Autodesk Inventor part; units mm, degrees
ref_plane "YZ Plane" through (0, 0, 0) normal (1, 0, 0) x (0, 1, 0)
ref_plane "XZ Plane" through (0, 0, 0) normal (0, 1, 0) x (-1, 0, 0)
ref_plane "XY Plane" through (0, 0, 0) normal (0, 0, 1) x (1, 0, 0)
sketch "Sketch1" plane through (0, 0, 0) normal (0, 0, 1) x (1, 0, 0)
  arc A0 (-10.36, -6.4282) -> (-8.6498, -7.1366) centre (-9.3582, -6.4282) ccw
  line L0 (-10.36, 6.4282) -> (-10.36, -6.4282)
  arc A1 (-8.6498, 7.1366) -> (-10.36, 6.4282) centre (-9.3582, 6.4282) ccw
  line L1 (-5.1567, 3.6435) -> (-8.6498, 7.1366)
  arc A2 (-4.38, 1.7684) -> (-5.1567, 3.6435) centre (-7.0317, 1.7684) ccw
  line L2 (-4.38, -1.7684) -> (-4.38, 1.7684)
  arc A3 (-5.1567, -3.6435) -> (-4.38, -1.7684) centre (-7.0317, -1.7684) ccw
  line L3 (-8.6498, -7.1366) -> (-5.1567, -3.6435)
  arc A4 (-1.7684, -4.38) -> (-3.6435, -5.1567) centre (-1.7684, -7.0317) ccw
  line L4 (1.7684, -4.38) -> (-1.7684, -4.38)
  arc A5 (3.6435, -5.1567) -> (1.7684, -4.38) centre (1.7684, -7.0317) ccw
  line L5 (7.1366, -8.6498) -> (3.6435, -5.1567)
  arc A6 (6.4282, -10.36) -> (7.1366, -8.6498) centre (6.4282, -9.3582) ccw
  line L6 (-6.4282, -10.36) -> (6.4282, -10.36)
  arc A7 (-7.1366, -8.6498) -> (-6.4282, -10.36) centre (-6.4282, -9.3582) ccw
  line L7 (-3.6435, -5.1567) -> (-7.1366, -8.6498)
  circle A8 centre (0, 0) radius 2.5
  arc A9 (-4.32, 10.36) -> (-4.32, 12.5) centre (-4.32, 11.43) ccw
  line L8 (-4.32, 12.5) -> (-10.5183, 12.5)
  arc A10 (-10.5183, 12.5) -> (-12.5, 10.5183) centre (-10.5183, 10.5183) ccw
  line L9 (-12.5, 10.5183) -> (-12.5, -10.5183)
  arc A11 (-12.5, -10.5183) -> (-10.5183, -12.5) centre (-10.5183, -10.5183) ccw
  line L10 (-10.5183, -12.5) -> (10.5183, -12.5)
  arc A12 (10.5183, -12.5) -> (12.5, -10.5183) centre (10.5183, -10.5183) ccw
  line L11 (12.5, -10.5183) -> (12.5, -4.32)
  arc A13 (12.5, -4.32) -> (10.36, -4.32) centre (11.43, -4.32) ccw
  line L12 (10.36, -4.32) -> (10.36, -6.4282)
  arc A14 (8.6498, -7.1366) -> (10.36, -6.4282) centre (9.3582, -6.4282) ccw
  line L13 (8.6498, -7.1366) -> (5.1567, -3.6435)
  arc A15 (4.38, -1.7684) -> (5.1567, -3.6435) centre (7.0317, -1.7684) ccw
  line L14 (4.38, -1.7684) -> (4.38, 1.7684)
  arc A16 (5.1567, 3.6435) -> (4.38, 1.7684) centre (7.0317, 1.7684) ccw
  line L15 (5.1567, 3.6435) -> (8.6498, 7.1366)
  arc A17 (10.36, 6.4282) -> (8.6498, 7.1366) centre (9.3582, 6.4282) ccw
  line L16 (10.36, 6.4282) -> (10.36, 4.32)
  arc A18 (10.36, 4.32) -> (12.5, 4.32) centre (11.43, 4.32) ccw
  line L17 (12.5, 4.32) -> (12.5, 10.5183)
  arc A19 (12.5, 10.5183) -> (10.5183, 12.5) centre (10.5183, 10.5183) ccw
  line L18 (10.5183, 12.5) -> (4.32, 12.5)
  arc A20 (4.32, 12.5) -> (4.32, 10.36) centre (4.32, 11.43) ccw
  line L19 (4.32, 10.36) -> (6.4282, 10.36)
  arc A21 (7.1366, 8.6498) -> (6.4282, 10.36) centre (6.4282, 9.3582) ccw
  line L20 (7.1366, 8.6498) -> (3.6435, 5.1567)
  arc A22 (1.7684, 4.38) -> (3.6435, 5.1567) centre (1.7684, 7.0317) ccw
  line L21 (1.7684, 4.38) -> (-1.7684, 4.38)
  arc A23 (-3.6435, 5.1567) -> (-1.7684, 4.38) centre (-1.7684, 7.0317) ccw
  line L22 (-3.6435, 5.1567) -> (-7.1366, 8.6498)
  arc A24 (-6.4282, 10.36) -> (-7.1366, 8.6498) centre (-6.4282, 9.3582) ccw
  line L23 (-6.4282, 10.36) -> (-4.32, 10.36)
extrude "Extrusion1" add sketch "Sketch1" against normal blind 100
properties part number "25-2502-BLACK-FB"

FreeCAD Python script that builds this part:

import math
import FreeCAD as App
import Part
import Sketcher
Q = App.Units.Quantity

doc = App.newDocument("Part")
body = doc.addObject("PartDesign::Body", "Body")

sketch1 = body.newObject("Sketcher::SketchObject", "Sketch")
sketch1.AttachmentSupport = (doc.getObject("XY_Plane"), [""])
sketch1.MapMode = "FlatFace"
sketch1.addGeometry(Part.LineSegment(App.Vector(-6.4, 10.4, 0), App.Vector(-4.3, 10.4, 0)), False)
sketch1.addGeometry(Part.ArcOfCircle(Part.Circle(App.Vector(-4.3, 11.4, 0), App.Vector(0, 0, 1), 1.1), math.radians(-90), math.radians(90)), False)
sketch1.addGeometry(Part.LineSegment(App.Vector(-4.3, 12.5, 0), App.Vector(-10.5, 12.5, 0)), False)
sketch1.addGeometry(Part.ArcOfCircle(Part.Circle(App.Vector(-10.5, 10.5, 0), App.Vector(0, 0, 1), 2), math.radians(90), math.radians(180)), False)
sketch1.addGeometry(Part.LineSegment(App.Vector(-12.5, 10.5, 0), App.Vector(-12.5, -10.5, 0)), False)
sketch1.addGeometry(Part.ArcOfCircle(Part.Circle(App.Vector(-10.5, -10.5, 0), App.Vector(0, 0, 1), 2), math.radians(180), math.radians(270)), False)
sketch1.addGeometry(Part.LineSegment(App.Vector(-10.5, -12.5, 0), App.Vector(10.5, -12.5, 0)), False)
sketch1.addGeometry(Part.ArcOfCircle(Part.Circle(App.Vector(10.5, -10.5, 0), App.Vector(0, 0, 1), 2), math.radians(-90), math.radians(0)), False)
sketch1.addGeometry(Part.LineSegment(App.Vector(12.5, -10.5, 0), App.Vector(12.5, -4.3, 0)), False)
sketch1.addGeometry(Part.ArcOfCircle(Part.Circle(App.Vector(11.4, -4.3, 0), App.Vector(0, 0, 1), 1.1), math.radians(0), math.radians(180)), False)
sketch1.addGeometry(Part.LineSegment(App.Vector(10.4, -4.3, 0), App.Vector(10.4, -6.4, 0)), False)
sketch1.addGeometry(Part.ArcOfCircle(Part.Circle(App.Vector(9.4, -6.4, 0), App.Vector(0, 0, 1), 1), math.radians(-135), math.radians(0)), False)
sketch1.addGeometry(Part.LineSegment(App.Vector(8.6, -7.1, 0), App.Vector(5.2, -3.6, 0)), False)
sketch1.addGeometry(Part.ArcOfCircle(Part.Circle(App.Vector(7, -1.8, 0), App.Vector(0, 0, 1), 2.7), math.radians(180), math.radians(225)), False)
sketch1.addGeometry(Part.LineSegment(App.Vector(4.4, -1.8, 0), App.Vector(4.4, 1.8, 0)), False)
sketch1.addGeometry(Part.ArcOfCircle(Part.Circle(App.Vector(7, 1.8, 0), App.Vector(0, 0, 1), 2.7), math.radians(135), math.radians(180)), False)
sketch1.addGeometry(Part.LineSegment(App.Vector(5.2, 3.6, 0), App.Vector(8.6, 7.1, 0)), False)
sketch1.addGeometry(Part.ArcOfCircle(Part.Circle(App.Vector(9.4, 6.4, 0), App.Vector(0, 0, 1), 1), math.radians(0), math.radians(135)), False)
sketch1.addGeometry(Part.LineSegment(App.Vector(10.4, 6.4, 0), App.Vector(10.4, 4.3, 0)), False)
sketch1.addGeometry(Part.ArcOfCircle(Part.Circle(App.Vector(11.4, 4.3, 0), App.Vector(0, 0, 1), 1.1), math.radians(180), math.radians(360)), False)
sketch1.addGeometry(Part.LineSegment(App.Vector(12.5, 4.3, 0), App.Vector(12.5, 10.5, 0)), False)
sketch1.addGeometry(Part.ArcOfCircle(Part.Circle(App.Vector(10.5, 10.5, 0), App.Vector(0, 0, 1), 2), math.radians(0), math.radians(90)), False)
sketch1.addGeometry(Part.LineSegment(App.Vector(10.5, 12.5, 0), App.Vector(4.3, 12.5, 0)), False)
sketch1.addGeometry(Part.ArcOfCircle(Part.Circle(App.Vector(4.3, 11.4, 0), App.Vector(0, 0, 1), 1.1), math.radians(90), math.radians(270)), False)
sketch1.addGeometry(Part.LineSegment(App.Vector(4.3, 10.4, 0), App.Vector(6.4, 10.4, 0)), False)
sketch1.addGeometry(Part.ArcOfCircle(Part.Circle(App.Vector(6.4, 9.4, 0), App.Vector(0, 0, 1), 1), math.radians(-45), math.radians(90)), False)
sketch1.addGeometry(Part.LineSegment(App.Vector(7.1, 8.6, 0), App.Vector(3.6, 5.2, 0)), False)
sketch1.addGeometry(Part.ArcOfCircle(Part.Circle(App.Vector(1.8, 7, 0), App.Vector(0, 0, 1), 2.7), math.radians(-90), math.radians(-45)), False)
sketch1.addGeometry(Part.LineSegment(App.Vector(1.8, 4.4, 0), App.Vector(-1.8, 4.4, 0)), False)
sketch1.addGeometry(Part.ArcOfCircle(Part.Circle(App.Vector(-1.8, 7, 0), App.Vector(0, 0, 1), 2.7), math.radians(-135), math.radians(-90)), False)
sketch1.addGeometry(Part.LineSegment(App.Vector(-3.6, 5.2, 0), App.Vector(-7.1, 8.6, 0)), False)
sketch1.addGeometry(Part.ArcOfCircle(Part.Circle(App.Vector(-6.4, 9.4, 0), App.Vector(0, 0, 1), 1), math.radians(90), math.radians(225)), False)
sketch1.addGeometry(Part.ArcOfCircle(Part.Circle(App.Vector(-1.8, -7, 0), App.Vector(0, 0, 1), 2.7), math.radians(90), math.radians(135)), False)
sketch1.addGeometry(Part.LineSegment(App.Vector(-1.8, -4.4, 0), App.Vector(1.8, -4.4, 0)), False)
sketch1.addGeometry(Part.ArcOfCircle(Part.Circle(App.Vector(1.8, -7, 0), App.Vector(0, 0, 1), 2.7), math.radians(45), math.radians(90)), False)
sketch1.addGeometry(Part.LineSegment(App.Vector(3.6, -5.2, 0), App.Vector(7.1, -8.6, 0)), False)
sketch1.addGeometry(Part.ArcOfCircle(Part.Circle(App.Vector(6.4, -9.4, 0), App.Vector(0, 0, 1), 1), math.radians(-90), math.radians(45)), False)
sketch1.addGeometry(Part.LineSegment(App.Vector(6.4, -10.4, 0), App.Vector(-6.4, -10.4, 0)), False)
sketch1.addGeometry(Part.ArcOfCircle(Part.Circle(App.Vector(-6.4, -9.4, 0), App.Vector(0, 0, 1), 1), math.radians(135), math.radians(270)), False)
sketch1.addGeometry(Part.LineSegment(App.Vector(-7.1, -8.6, 0), App.Vector(-3.6, -5.2, 0)), False)
sketch1.addGeometry(Part.ArcOfCircle(Part.Circle(App.Vector(-9.4, -6.4, 0), App.Vector(0, 0, 1), 1), math.radians(180), math.radians(315)), False)
sketch1.addGeometry(Part.LineSegment(App.Vector(-10.4, -6.4, 0), App.Vector(-10.4, 6.4, 0)), False)
sketch1.addGeometry(Part.ArcOfCircle(Part.Circle(App.Vector(-9.4, 6.4, 0), App.Vector(0, 0, 1), 1), math.radians(45), math.radians(180)), False)
sketch1.addGeometry(Part.LineSegment(App.Vector(-8.6, 7.1, 0), App.Vector(-5.2, 3.6, 0)), False)
sketch1.addGeometry(Part.ArcOfCircle(Part.Circle(App.Vector(-7, 1.8, 0), App.Vector(0, 0, 1), 2.7), math.radians(0), math.radians(45)), False)
sketch1.addGeometry(Part.LineSegment(App.Vector(-4.4, 1.8, 0), App.Vector(-4.4, -1.8, 0)), False)
sketch1.addGeometry(Part.ArcOfCircle(Part.Circle(App.Vector(-7, -1.8, 0), App.Vector(0, 0, 1), 2.7), math.radians(-45), math.radians(0)), False)
sketch1.addGeometry(Part.LineSegment(App.Vector(-5.2, -3.6, 0), App.Vector(-8.6, -7.1, 0)), False)
sketch1.addGeometry(Part.Circle(App.Vector(0, 0, 0), App.Vector(0, 0, 1), 2.5), False)
sketch1.addConstraint(Sketcher.Constraint("Tangent", 0, 2, 1, 1))
sketch1.addConstraint(Sketcher.Constraint("Tangent", 1, 2, 2, 1))
sketch1.addConstraint(Sketcher.Constraint("Tangent", 2, 2, 3, 1))
sketch1.addConstraint(Sketcher.Constraint("Tangent", 3, 2, 4, 1))
sketch1.addConstraint(Sketcher.Constraint("Tangent", 4, 2, 5, 1))
sketch1.addConstraint(Sketcher.Constraint("Tangent", 5, 2, 6, 1))
sketch1.addConstraint(Sketcher.Constraint("Tangent", 6, 2, 7, 1))
sketch1.addConstraint(Sketcher.Constraint("Tangent", 7, 2, 8, 1))
sketch1.addConstraint(Sketcher.Constraint("Tangent", 8, 2, 9, 1))
sketch1.addConstraint(Sketcher.Constraint("Tangent", 9, 2, 10, 1))
sketch1.addConstraint(Sketcher.Constraint("Tangent", 10, 2, 11, 2))
sketch1.addConstraint(Sketcher.Constraint("Tangent", 11, 1, 12, 1))
sketch1.addConstraint(Sketcher.Constraint("Tangent", 12, 2, 13, 2))
sketch1.addConstraint(Sketcher.Constraint("Tangent", 13, 1, 14, 1))
sketch1.addConstraint(Sketcher.Constraint("Tangent", 14, 2, 15, 2))
sketch1.addConstraint(Sketcher.Constraint("Tangent", 15, 1, 16, 1))
sketch1.addConstraint(Sketcher.Constraint("Tangent", 16, 2, 17, 2))
sketch1.addConstraint(Sketcher.Constraint("Tangent", 17, 1, 18, 1))
sketch1.addConstraint(Sketcher.Constraint("Tangent", 18, 2, 19, 1))
sketch1.addConstraint(Sketcher.Constraint("Tangent", 19, 2, 20, 1))
sketch1.addConstraint(Sketcher.Constraint("Tangent", 20, 2, 21, 1))
sketch1.addConstraint(Sketcher.Constraint("Tangent", 21, 2, 22, 1))
sketch1.addConstraint(Sketcher.Constraint("Tangent", 22, 2, 23, 1))
sketch1.addConstraint(Sketcher.Constraint("Tangent", 23, 2, 24, 1))
sketch1.addConstraint(Sketcher.Constraint("Tangent", 24, 2, 25, 2))
sketch1.addConstraint(Sketcher.Constraint("Tangent", 25, 1, 26, 1))
sketch1.addConstraint(Sketcher.Constraint("Tangent", 26, 2, 27, 2))
sketch1.addConstraint(Sketcher.Constraint("Tangent", 27, 1, 28, 1))
sketch1.addConstraint(Sketcher.Constraint("Tangent", 28, 2, 29, 2))
sketch1.addConstraint(Sketcher.Constraint("Tangent", 29, 1, 30, 1))
sketch1.addConstraint(Sketcher.Constraint("Tangent", 30, 2, 31, 2))
sketch1.addConstraint(Sketcher.Constraint("Tangent", 31, 1, 0, 1))
sketch1.addConstraint(Sketcher.Constraint("Tangent", 32, 1, 33, 1))
sketch1.addConstraint(Sketcher.Constraint("Tangent", 33, 2, 34, 2))
sketch1.addConstraint(Sketcher.Constraint("Tangent", 34, 1, 35, 1))
sketch1.addConstraint(Sketcher.Constraint("Tangent", 35, 2, 36, 2))
sketch1.addConstraint(Sketcher.Constraint("Tangent", 36, 1, 37, 1))
sketch1.addConstraint(Sketcher.Constraint("Tangent", 37, 2, 38, 2))
sketch1.addConstraint(Sketcher.Constraint("Tangent", 38, 1, 39, 1))
sketch1.addConstraint(Sketcher.Constraint("Tangent", 39, 2, 32, 2))
sketch1.addConstraint(Sketcher.Constraint("Tangent", 40, 1, 41, 1))
sketch1.addConstraint(Sketcher.Constraint("Tangent", 41, 2, 42, 2))
sketch1.addConstraint(Sketcher.Constraint("Tangent", 42, 1, 43, 1))
sketch1.addConstraint(Sketcher.Constraint("Tangent", 43, 2, 44, 2))
sketch1.addConstraint(Sketcher.Constraint("Tangent", 44, 1, 45, 1))
sketch1.addConstraint(Sketcher.Constraint("Tangent", 45, 2, 46, 2))
sketch1.addConstraint(Sketcher.Constraint("Tangent", 46, 1, 47, 1))
sketch1.addConstraint(Sketcher.Constraint("Tangent", 47, 2, 40, 2))
sketch1.addConstraint(Sketcher.Constraint("Horizontal", 0))
sketch1.addConstraint(Sketcher.Constraint("Horizontal", 2))
sketch1.addConstraint(Sketcher.Constraint("Vertical", 4))
sketch1.addConstraint(Sketcher.Constraint("Horizontal", 6))
sketch1.addConstraint(Sketcher.Constraint("Vertical", 8))
sketch1.addConstraint(Sketcher.Constraint("Vertical", 10))
sketch1.addConstraint(Sketcher.Constraint("Vertical", 14))
sketch1.addConstraint(Sketcher.Constraint("Vertical", 18))
sketch1.addConstraint(Sketcher.Constraint("Vertical", 20))
sketch1.addConstraint(Sketcher.Constraint("Horizontal", 22))
sketch1.addConstraint(Sketcher.Constraint("Horizontal", 24))
sketch1.addConstraint(Sketcher.Constraint("Horizontal", 28))
sketch1.addConstraint(Sketcher.Constraint("Horizontal", 33))
sketch1.addConstraint(Sketcher.Constraint("Horizontal", 37))
sketch1.addConstraint(Sketcher.Constraint("Vertical", 41))
sketch1.addConstraint(Sketcher.Constraint("Vertical", 45))
sketch1.addConstraint(Sketcher.Constraint("Coincident", 48, 3, -1, 1))
sketch1.addConstraint(Sketcher.Constraint("Equal", 3, 5))
sketch1.addConstraint(Sketcher.Constraint("Equal", 5, 7))
sketch1.addConstraint(Sketcher.Constraint("Equal", 1, 9))
sketch1.addConstraint(Sketcher.Constraint("Equal", 13, 15))
sketch1.addConstraint(Sketcher.Constraint("Equal", 11, 17))
sketch1.addConstraint(Sketcher.Constraint("Equal", 9, 19))
sketch1.addConstraint(Sketcher.Constraint("Equal", 7, 21))
sketch1.addConstraint(Sketcher.Constraint("Equal", 19, 23))
sketch1.addConstraint(Sketcher.Constraint("Equal", 17, 25))
sketch1.addConstraint(Sketcher.Constraint("Equal", 15, 27))
sketch1.addConstraint(Sketcher.Constraint("Equal", 27, 29))
sketch1.addConstraint(Sketcher.Constraint("Equal", 25, 31))
sketch1.addConstraint(Sketcher.Constraint("Equal", 29, 32))
sketch1.addConstraint(Sketcher.Constraint("Equal", 32, 34))
sketch1.addConstraint(Sketcher.Constraint("Equal", 31, 36))
sketch1.addConstraint(Sketcher.Constraint("Equal", 36, 38))
sketch1.addConstraint(Sketcher.Constraint("Equal", 38, 40))
sketch1.addConstraint(Sketcher.Constraint("Equal", 40, 42))
sketch1.addConstraint(Sketcher.Constraint("Equal", 34, 44))
sketch1.addConstraint(Sketcher.Constraint("Equal", 44, 46))
sketch1.addConstraint(Sketcher.Constraint("Symmetric", 3, 3, 7, 3, -1, 1))
sketch1.addConstraint(Sketcher.Constraint("Symmetric", 5, 3, 21, 3, -1, 1))
sketch1.addConstraint(Sketcher.Constraint("Symmetric", 27, 3, 32, 3, -1, 1))
sketch1.addConstraint(Sketcher.Constraint("Symmetric", 31, 3, 36, 3, -1, 1))
sketch1.addConstraint(Sketcher.Constraint("Symmetric", 17, 3, 40, 3, -1, 1))
sketch1.addConstraint(Sketcher.Constraint("Symmetric", 13, 3, 44, 3, -1, 1))
sketch1.addConstraint(Sketcher.Constraint("Symmetric", 26, 2, 29, 1, -2))
sketch1.addConstraint(Sketcher.Constraint("Symmetric", 35, 2, 38, 1, -2))
sketch1.addConstraint(Sketcher.Constraint("Symmetric", 16, 2, 42, 1, -2))
sketch1.addConstraint(Sketcher.Constraint("Symmetric", 12, 2, 46, 1, -2))
sketch1.addConstraint(Sketcher.Constraint("Perpendicular", 12, 16))
sketch1.addConstraint(Sketcher.Constraint("Parallel", 16, 26))
sketch1.addConstraint(Sketcher.Constraint("Equal", 2, 22))
sketch1.addConstraint(Sketcher.Constraint("Equal", 6, 4))
sketch1.addConstraint(Sketcher.Constraint("Equal", 22, 8))
sketch1.addConstraint(Sketcher.Constraint("Equal", 24, 10))
sketch1.addConstraint(Sketcher.Constraint("Equal", 33, 14))
sketch1.addConstraint(Sketcher.Constraint("Equal", 10, 18))
sketch1.addConstraint(Sketcher.Constraint("Radius", 13, Q("0.1044 in")))
sketch1.addConstraint(Sketcher.Constraint("Diameter", 48, Q("5 mm")))
sketch1.addConstraint(Sketcher.Constraint("DistanceX", 0, 1, 0, 2, Q("0.083 in")))
sketch1.addConstraint(Sketcher.Constraint("DistanceY", -1, 1, 1, 3, Q("0.45 in")))
sketch1.addConstraint(Sketcher.Constraint("Radius", 1, Q("1.07 mm")))
sketch1.addConstraint(Sketcher.Constraint("Radius", 3, Q("1.9817 mm")))
sketch1.addConstraint(Sketcher.Constraint("Radius", 11, Q("1.0018 mm")))
sketch1.addConstraint(Sketcher.Constraint("DistanceX", 2, 2, 2, 1, Q("6.1983 mm")))
sketch1.addConstraint(Sketcher.Constraint("DistanceX", 28, 2, 28, 1, Q("3.5368 mm")))
pad1 = body.newObject("PartDesign::Pad", "Pad")
pad1.Profile = sketch1
pad1.Length = Q("3.9370079 in")
pad1.Reversed = True

doc.recompute()
